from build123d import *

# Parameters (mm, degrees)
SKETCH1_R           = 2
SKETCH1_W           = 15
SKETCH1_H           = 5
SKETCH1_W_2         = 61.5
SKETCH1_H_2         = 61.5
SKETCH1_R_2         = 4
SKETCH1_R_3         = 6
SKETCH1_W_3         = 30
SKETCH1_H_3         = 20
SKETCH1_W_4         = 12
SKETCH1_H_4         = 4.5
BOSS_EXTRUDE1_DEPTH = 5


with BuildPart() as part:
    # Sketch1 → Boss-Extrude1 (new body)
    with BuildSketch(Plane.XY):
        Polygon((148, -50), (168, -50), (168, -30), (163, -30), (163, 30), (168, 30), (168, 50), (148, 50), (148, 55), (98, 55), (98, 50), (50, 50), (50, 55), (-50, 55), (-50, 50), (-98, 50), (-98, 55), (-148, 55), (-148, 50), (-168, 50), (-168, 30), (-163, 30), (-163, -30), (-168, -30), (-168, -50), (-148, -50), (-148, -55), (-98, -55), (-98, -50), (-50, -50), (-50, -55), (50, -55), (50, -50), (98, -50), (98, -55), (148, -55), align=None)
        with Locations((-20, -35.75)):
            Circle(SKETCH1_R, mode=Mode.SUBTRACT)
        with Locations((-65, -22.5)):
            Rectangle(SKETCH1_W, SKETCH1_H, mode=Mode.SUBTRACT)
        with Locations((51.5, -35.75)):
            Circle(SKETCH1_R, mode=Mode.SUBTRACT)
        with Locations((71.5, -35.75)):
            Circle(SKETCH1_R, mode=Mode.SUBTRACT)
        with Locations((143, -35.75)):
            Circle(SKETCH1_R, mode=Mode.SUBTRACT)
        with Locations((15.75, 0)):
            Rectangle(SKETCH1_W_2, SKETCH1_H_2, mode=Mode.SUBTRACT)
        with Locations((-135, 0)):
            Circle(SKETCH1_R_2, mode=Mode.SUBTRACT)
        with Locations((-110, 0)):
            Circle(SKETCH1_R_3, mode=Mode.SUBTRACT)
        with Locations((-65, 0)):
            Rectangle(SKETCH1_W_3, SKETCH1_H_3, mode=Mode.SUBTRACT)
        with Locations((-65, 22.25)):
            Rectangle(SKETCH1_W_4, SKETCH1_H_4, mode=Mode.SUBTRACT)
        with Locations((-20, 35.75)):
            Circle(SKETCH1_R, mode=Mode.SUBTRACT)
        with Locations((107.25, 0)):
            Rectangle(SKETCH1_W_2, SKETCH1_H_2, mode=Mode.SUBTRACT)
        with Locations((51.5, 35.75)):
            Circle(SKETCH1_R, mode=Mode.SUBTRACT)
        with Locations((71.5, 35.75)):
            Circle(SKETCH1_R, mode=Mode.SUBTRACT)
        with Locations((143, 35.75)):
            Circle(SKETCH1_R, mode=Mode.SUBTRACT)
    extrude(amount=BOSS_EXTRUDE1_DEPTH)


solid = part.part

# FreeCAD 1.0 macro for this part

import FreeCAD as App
import Part
import Sketcher

V = App.Vector
Q = App.Units.Quantity

doc = App.newDocument("Part")
body = doc.addObject("PartDesign::Body", "Body")

# Sketch on XY plane
sketch1 = body.newObject("Sketcher::SketchObject", "Sketch")
sketch1.AttachmentSupport = (doc.getObject("XY_Plane"), [""])
sketch1.MapMode = "FlatFace"
sketch1.addGeometry(Part.LineSegment(V(148, -50, 0), V(168, -50, 0)), False)
sketch1.addGeometry(Part.LineSegment(V(168, -50, 0), V(168, -30, 0)), False)
sketch1.addGeometry(Part.LineSegment(V(168, -30, 0), V(163, -30, 0)), False)
sketch1.addGeometry(Part.LineSegment(V(163, -30, 0), V(163, 30, 0)), False)
sketch1.addGeometry(Part.LineSegment(V(163, 30, 0), V(168, 30, 0)), False)
sketch1.addGeometry(Part.LineSegment(V(168, 30, 0), V(168, 50, 0)), False)
sketch1.addGeometry(Part.LineSegment(V(168, 50, 0), V(148, 50, 0)), False)
sketch1.addGeometry(Part.LineSegment(V(148, 50, 0), V(148, 55, 0)), False)
sketch1.addGeometry(Part.LineSegment(V(148, 55, 0), V(98, 55, 0)), False)
sketch1.addGeometry(Part.LineSegment(V(98, 55, 0), V(98, 50, 0)), False)
sketch1.addGeometry(Part.LineSegment(V(98, 50, 0), V(50, 50, 0)), False)
sketch1.addGeometry(Part.LineSegment(V(50, 50, 0), V(50, 55, 0)), False)
sketch1.addGeometry(Part.LineSegment(V(50, 55, 0), V(-50, 55, 0)), False)
sketch1.addGeometry(Part.LineSegment(V(-50, 55, 0), V(-50, 50, 0)), False)
sketch1.addGeometry(Part.LineSegment(V(-50, 50, 0), V(-98, 50, 0)), False)
sketch1.addGeometry(Part.LineSegment(V(-98, 50, 0), V(-98, 55, 0)), False)
sketch1.addGeometry(Part.LineSegment(V(-98, 55, 0), V(-148, 55, 0)), False)
sketch1.addGeometry(Part.LineSegment(V(-148, 55, 0), V(-148, 50, 0)), False)
sketch1.addGeometry(Part.LineSegment(V(-148, 50, 0), V(-168, 50, 0)), False)
sketch1.addGeometry(Part.LineSegment(V(-168, 50, 0), V(-168, 30, 0)), False)
sketch1.addGeometry(Part.LineSegment(V(-168, 30, 0), V(-163, 30, 0)), False)
sketch1.addGeometry(Part.LineSegment(V(-163, 30, 0), V(-163, -30, 0)), False)
sketch1.addGeometry(Part.LineSegment(V(-163, -30, 0), V(-168, -30, 0)), False)
sketch1.addGeometry(Part.LineSegment(V(-168, -30, 0), V(-168, -50, 0)), False)
sketch1.addGeometry(Part.LineSegment(V(-168, -50, 0), V(-148, -50, 0)), False)
sketch1.addGeometry(Part.LineSegment(V(-148, -50, 0), V(-148, -55, 0)), False)
sketch1.addGeometry(Part.LineSegment(V(-148, -55, 0), V(-98, -55, 0)), False)
sketch1.addGeometry(Part.LineSegment(V(-98, -55, 0), V(-98, -50, 0)), False)
sketch1.addGeometry(Part.LineSegment(V(-98, -50, 0), V(-50, -50, 0)), False)
sketch1.addGeometry(Part.LineSegment(V(-50, -50, 0), V(-50, -55, 0)), False)
sketch1.addGeometry(Part.LineSegment(V(-50, -55, 0), V(50, -55, 0)), False)
sketch1.addGeometry(Part.LineSegment(V(50, -55, 0), V(50, -50, 0)), False)
sketch1.addGeometry(Part.LineSegment(V(50, -50, 0), V(98, -50, 0)), False)
sketch1.addGeometry(Part.LineSegment(V(98, -50, 0), V(98, -55, 0)), False)
sketch1.addGeometry(Part.LineSegment(V(98, -55, 0), V(148, -55, 0)), False)
sketch1.addGeometry(Part.LineSegment(V(148, -55, 0), V(148, -50, 0)), False)
sketch1.addGeometry(Part.Circle(V(-20, -35.8, 0), V(0, 0, 1), 2), False)
sketch1.addGeometry(Part.LineSegment(V(-57.5, -25, 0), V(-72.5, -25, 0)), False)
sketch1.addGeometry(Part.LineSegment(V(-72.5, -25, 0), V(-72.5, -20, 0)), False)
sketch1.addGeometry(Part.LineSegment(V(-72.5, -20, 0), V(-57.5, -20, 0)), False)
sketch1.addGeometry(Part.LineSegment(V(-57.5, -20, 0), V(-57.5, -25, 0)), False)
sketch1.addGeometry(Part.Circle(V(51.5, -35.8, 0), V(0, 0, 1), 2), False)
sketch1.addGeometry(Part.Circle(V(71.5, -35.8, 0), V(0, 0, 1), 2), False)
sketch1.addGeometry(Part.Circle(V(143, -35.8, 0), V(0, 0, 1), 2), False)
sketch1.addGeometry(Part.Circle(V(-135, 0, 0), V(0, 0, 1), 4), False)
sketch1.addGeometry(Part.Circle(V(-110, 0, 0), V(0, 0, 1), 6), False)
sketch1.addGeometry(Part.LineSegment(V(-50, -10, 0), V(-80, -10, 0)), False)
sketch1.addGeometry(Part.LineSegment(V(-80, -10, 0), V(-80, 10, 0)), False)
sketch1.addGeometry(Part.LineSegment(V(-80, 10, 0), V(-50, 10, 0)), False)
sketch1.addGeometry(Part.LineSegment(V(-50, 10, 0), V(-50, -10, 0)), False)
sketch1.addGeometry(Part.LineSegment(V(-59, 20, 0), V(-71, 20, 0)), False)
sketch1.addGeometry(Part.LineSegment(V(-71, 20, 0), V(-71, 24.5, 0)), False)
sketch1.addGeometry(Part.LineSegment(V(-71, 24.5, 0), V(-59, 24.5, 0)), False)
sketch1.addGeometry(Part.LineSegment(V(-59, 24.5, 0), V(-59, 20, 0)), False)
sketch1.addGeometry(Part.Circle(V(-20, 35.8, 0), V(0, 0, 1), 2), False)
sketch1.addGeometry(Part.LineSegment(V(46.5, -30.8, 0), V(-15, -30.8, 0)), False)
sketch1.addGeometry(Part.LineSegment(V(-15, -30.8, 0), V(-15, 30.8, 0)), False)
sketch1.addGeometry(Part.LineSegment(V(-15, 30.8, 0), V(46.5, 30.8, 0)), False)
sketch1.addGeometry(Part.LineSegment(V(46.5, 30.8, 0), V(46.5, -30.8, 0)), False)
sketch1.addGeometry(Part.LineSegment(V(138, -30.8, 0), V(76.5, -30.8, 0)), False)
sketch1.addGeometry(Part.LineSegment(V(76.5, -30.8, 0), V(76.5, 30.8, 0)), False)
sketch1.addGeometry(Part.LineSegment(V(76.5, 30.8, 0), V(138, 30.8, 0)), False)
sketch1.addGeometry(Part.LineSegment(V(138, 30.8, 0), V(138, -30.8, 0)), False)
sketch1.addGeometry(Part.Circle(V(51.5, 35.8, 0), V(0, 0, 1), 2), False)
sketch1.addGeometry(Part.Circle(V(71.5, 35.8, 0), V(0, 0, 1), 2), False)
sketch1.addGeometry(Part.Circle(V(143, 35.8, 0), V(0, 0, 1), 2), False)
sketch1.addConstraint(Sketcher.Constraint("Coincident", 0, 2, 1, 1))
sketch1.addConstraint(Sketcher.Constraint("Coincident", 1, 2, 2, 1))
sketch1.addConstraint(Sketcher.Constraint("Coincident", 2, 2, 3, 1))
sketch1.addConstraint(Sketcher.Constraint("Coincident", 3, 2, 4, 1))
sketch1.addConstraint(Sketcher.Constraint("Coincident", 4, 2, 5, 1))
sketch1.addConstraint(Sketcher.Constraint("Coincident", 5, 2, 6, 1))
sketch1.addConstraint(Sketcher.Constraint("Coincident", 6, 2, 7, 1))
sketch1.addConstraint(Sketcher.Constraint("Coincident", 7, 2, 8, 1))
sketch1.addConstraint(Sketcher.Constraint("Coincident", 8, 2, 9, 1))
sketch1.addConstraint(Sketcher.Constraint("Coincident", 9, 2, 10, 1))
sketch1.addConstraint(Sketcher.Constraint("Coincident", 10, 2, 11, 1))
sketch1.addConstraint(Sketcher.Constraint("Coincident", 11, 2, 12, 1))
sketch1.addConstraint(Sketcher.Constraint("Coincident", 12, 2, 13, 1))
sketch1.addConstraint(Sketcher.Constraint("Coincident", 13, 2, 14, 1))
sketch1.addConstraint(Sketcher.Constraint("Coincident", 14, 2, 15, 1))
sketch1.addConstraint(Sketcher.Constraint("Coincident", 15, 2, 16, 1))
sketch1.addConstraint(Sketcher.Constraint("Coincident", 16, 2, 17, 1))
sketch1.addConstraint(Sketcher.Constraint("Coincident", 17, 2, 18, 1))
sketch1.addConstraint(Sketcher.Constraint("Coincident", 18, 2, 19, 1))
sketch1.addConstraint(Sketcher.Constraint("Coincident", 19, 2, 20, 1))
sketch1.addConstraint(Sketcher.Constraint("Coincident", 20, 2, 21, 1))
sketch1.addConstraint(Sketcher.Constraint("Coincident", 21, 2, 22, 1))
sketch1.addConstraint(Sketcher.Constraint("Coincident", 22, 2, 23, 1))
sketch1.addConstraint(Sketcher.Constraint("Coincident", 23, 2, 24, 1))
sketch1.addConstraint(Sketcher.Constraint("Coincident", 24, 2, 25, 1))
sketch1.addConstraint(Sketcher.Constraint("Coincident", 25, 2, 26, 1))
sketch1.addConstraint(Sketcher.Constraint("Coincident", 26, 2, 27, 1))
sketch1.addConstraint(Sketcher.Constraint("Coincident", 27, 2, 28, 1))
sketch1.addConstraint(Sketcher.Constraint("Coincident", 28, 2, 29, 1))
sketch1.addConstraint(Sketcher.Constraint("Coincident", 29, 2, 30, 1))
sketch1.addConstraint(Sketcher.Constraint("Coincident", 30, 2, 31, 1))
sketch1.addConstraint(Sketcher.Constraint("Coincident", 31, 2, 32, 1))
sketch1.addConstraint(Sketcher.Constraint("Coincident", 32, 2, 33, 1))
sketch1.addConstraint(Sketcher.Constraint("Coincident", 33, 2, 34, 1))
sketch1.addConstraint(Sketcher.Constraint("Coincident", 34, 2, 35, 1))
sketch1.addConstraint(Sketcher.Constraint("Coincident", 35, 2, 0, 1))
sketch1.addConstraint(Sketcher.Constraint("Coincident", 37, 2, 38, 1))
sketch1.addConstraint(Sketcher.Constraint("Coincident", 38, 2, 39, 1))
sketch1.addConstraint(Sketcher.Constraint("Coincident", 39, 2, 40, 1))
sketch1.addConstraint(Sketcher.Constraint("Coincident", 40, 2, 37, 1))
sketch1.addConstraint(Sketcher.Constraint("Coincident", 46, 2, 47, 1))
sketch1.addConstraint(Sketcher.Constraint("Coincident", 47, 2, 48, 1))
sketch1.addConstraint(Sketcher.Constraint("Coincident", 48, 2, 49, 1))
sketch1.addConstraint(Sketcher.Constraint("Coincident", 49, 2, 46, 1))
sketch1.addConstraint(Sketcher.Constraint("Coincident", 50, 2, 51, 1))
sketch1.addConstraint(Sketcher.Constraint("Coincident", 51, 2, 52, 1))
sketch1.addConstraint(Sketcher.Constraint("Coincident", 52, 2, 53, 1))
sketch1.addConstraint(Sketcher.Constraint("Coincident", 53, 2, 50, 1))
sketch1.addConstraint(Sketcher.Constraint("Coincident", 55, 2, 56, 1))
sketch1.addConstraint(Sketcher.Constraint("Coincident", 56, 2, 57, 1))
sketch1.addConstraint(Sketcher.Constraint("Coincident", 57, 2, 58, 1))
sketch1.addConstraint(Sketcher.Constraint("Coincident", 58, 2, 55, 1))
sketch1.addConstraint(Sketcher.Constraint("Coincident", 59, 2, 60, 1))
sketch1.addConstraint(Sketcher.Constraint("Coincident", 60, 2, 61, 1))
sketch1.addConstraint(Sketcher.Constraint("Coincident", 61, 2, 62, 1))
sketch1.addConstraint(Sketcher.Constraint("Coincident", 62, 2, 59, 1))
sketch1.addConstraint(Sketcher.Constraint("Horizontal", 0))
sketch1.addConstraint(Sketcher.Constraint("Vertical", 1))
sketch1.addConstraint(Sketcher.Constraint("Horizontal", 2))
sketch1.addConstraint(Sketcher.Constraint("Vertical", 3))
sketch1.addConstraint(Sketcher.Constraint("Horizontal", 4))
sketch1.addConstraint(Sketcher.Constraint("Vertical", 5))
sketch1.addConstraint(Sketcher.Constraint("Horizontal", 6))
sketch1.addConstraint(Sketcher.Constraint("Vertical", 7))
sketch1.addConstraint(Sketcher.Constraint("Horizontal", 8))
sketch1.addConstraint(Sketcher.Constraint("Vertical", 9))
sketch1.addConstraint(Sketcher.Constraint("Horizontal", 10))
sketch1.addConstraint(Sketcher.Constraint("Vertical", 11))
sketch1.addConstraint(Sketcher.Constraint("Horizontal", 12))
sketch1.addConstraint(Sketcher.Constraint("Vertical", 13))
sketch1.addConstraint(Sketcher.Constraint("Horizontal", 14))
sketch1.addConstraint(Sketcher.Constraint("Vertical", 15))
sketch1.addConstraint(Sketcher.Constraint("Horizontal", 16))
sketch1.addConstraint(Sketcher.Constraint("Vertical", 17))
sketch1.addConstraint(Sketcher.Constraint("Horizontal", 18))
sketch1.addConstraint(Sketcher.Constraint("Vertical", 19))
sketch1.addConstraint(Sketcher.Constraint("Horizontal", 20))
sketch1.addConstraint(Sketcher.Constraint("Vertical", 21))
sketch1.addConstraint(Sketcher.Constraint("Horizontal", 22))
sketch1.addConstraint(Sketcher.Constraint("Vertical", 23))
sketch1.addConstraint(Sketcher.Constraint("Horizontal", 24))
sketch1.addConstraint(Sketcher.Constraint("Vertical", 25))
sketch1.addConstraint(Sketcher.Constraint("Horizontal", 26))
sketch1.addConstraint(Sketcher.Constraint("Vertical", 27))
sketch1.addConstraint(Sketcher.Constraint("Horizontal", 28))
sketch1.addConstraint(Sketcher.Constraint("Vertical", 29))
sketch1.addConstraint(Sketcher.Constraint("Horizontal", 30))
sketch1.addConstraint(Sketcher.Constraint("Vertical", 31))
sketch1.addConstraint(Sketcher.Constraint("Horizontal", 32))
sketch1.addConstraint(Sketcher.Constraint("Vertical", 33))
sketch1.addConstraint(Sketcher.Constraint("Horizontal", 34))
sketch1.addConstraint(Sketcher.Constraint("Vertical", 35))
sketch1.addConstraint(Sketcher.Constraint("Horizontal", 37))
sketch1.addConstraint(Sketcher.Constraint("Vertical", 38))
sketch1.addConstraint(Sketcher.Constraint("Horizontal", 39))
sketch1.addConstraint(Sketcher.Constraint("Vertical", 40))
sketch1.addConstraint(Sketcher.Constraint("Horizontal", 46))
sketch1.addConstraint(Sketcher.Constraint("Vertical", 47))
sketch1.addConstraint(Sketcher.Constraint("Horizontal", 48))
sketch1.addConstraint(Sketcher.Constraint("Vertical", 49))
sketch1.addConstraint(Sketcher.Constraint("Horizontal", 50))
sketch1.addConstraint(Sketcher.Constraint("Vertical", 51))
sketch1.addConstraint(Sketcher.Constraint("Horizontal", 52))
sketch1.addConstraint(Sketcher.Constraint("Vertical", 53))
sketch1.addConstraint(Sketcher.Constraint("Horizontal", 55))
sketch1.addConstraint(Sketcher.Constraint("Vertical", 56))
sketch1.addConstraint(Sketcher.Constraint("Horizontal", 57))
sketch1.addConstraint(Sketcher.Constraint("Vertical", 58))
sketch1.addConstraint(Sketcher.Constraint("Horizontal", 59))
sketch1.addConstraint(Sketcher.Constraint("Vertical", 60))
sketch1.addConstraint(Sketcher.Constraint("Horizontal", 61))
sketch1.addConstraint(Sketcher.Constraint("Vertical", 62))
sketch1.addConstraint(Sketcher.Constraint("Equal", 36, 41))
sketch1.addConstraint(Sketcher.Constraint("Equal", 41, 42))
sketch1.addConstraint(Sketcher.Constraint("Equal", 42, 43))
sketch1.addConstraint(Sketcher.Constraint("Equal", 43, 54))
sketch1.addConstraint(Sketcher.Constraint("Equal", 54, 63))
sketch1.addConstraint(Sketcher.Constraint("Equal", 63, 64))
sketch1.addConstraint(Sketcher.Constraint("Equal", 64, 65))
sketch1.addConstraint(Sketcher.Constraint("Symmetric", 0, 2, 18, 2, -1, 1))
sketch1.addConstraint(Sketcher.Constraint("Symmetric", 2, 2, 20, 2, -1, 1))
sketch1.addConstraint(Sketcher.Constraint("Symmetric", 4, 2, 22, 2, -1, 1))
sketch1.addConstraint(Sketcher.Constraint("Symmetric", 6, 2, 24, 2, -1, 1))
sketch1.addConstraint(Sketcher.Constraint("Symmetric", 8, 2, 26, 2, -1, 1))
sketch1.addConstraint(Sketcher.Constraint("Symmetric", 10, 2, 28, 2, -1, 1))
sketch1.addConstraint(Sketcher.Constraint("Symmetric", 12, 2, 30, 2, -1, 1))
sketch1.addConstraint(Sketcher.Constraint("Symmetric", 14, 2, 32, 2, -1, 1))
sketch1.addConstraint(Sketcher.Constraint("Symmetric", 16, 2, 34, 2, -1, 1))
sketch1.addConstraint(Sketcher.Constraint("Symmetric", 10, 2, 13, 2, -2))
sketch1.addConstraint(Sketcher.Constraint("Symmetric", 8, 2, 15, 2, -2))
sketch1.addConstraint(Sketcher.Constraint("Symmetric", 6, 2, 17, 2, -2))
sketch1.addConstraint(Sketcher.Constraint("Symmetric", 4, 2, 19, 2, -2))
sketch1.addConstraint(Sketcher.Constraint("Symmetric", 36, 3, 54, 3, -1))
sketch1.addConstraint(Sketcher.Constraint("Symmetric", 41, 3, 63, 3, -1))
sketch1.addConstraint(Sketcher.Constraint("Symmetric", 42, 3, 64, 3, -1))
sketch1.addConstraint(Sketcher.Constraint("Symmetric", 43, 3, 65, 3, -1))
sketch1.addConstraint(Sketcher.Constraint("PointOnObject", 44, 3, -1))
sketch1.addConstraint(Sketcher.Constraint("PointOnObject", 45, 3, -1))
sketch1.addConstraint(Sketcher.Constraint("Horizontal", 36, 3, 41, 3))
sketch1.addConstraint(Sketcher.Constraint("Horizontal", 41, 3, 42, 3))
sketch1.addConstraint(Sketcher.Constraint("Horizontal", 42, 3, 43, 3))
sketch1.addConstraint(Sketcher.Constraint("Horizontal", 6, 2, 9, 2))
sketch1.addConstraint(Sketcher.Constraint("Horizontal", 8, 2, 11, 2))
sketch1.addConstraint(Sketcher.Constraint("Horizontal", 58, 2, 59, 2))
sketch1.addConstraint(Sketcher.Constraint("Horizontal", 57, 2, 60, 2))
sketch1.addConstraint(Sketcher.Constraint("Vertical", 29, 2, 48, 2))
sketch1.addConstraint(Sketcher.Constraint("Equal", 57, 59))
sketch1.addConstraint(Sketcher.Constraint("Equal", 24, 1))
sketch1.addConstraint(Sketcher.Constraint("Equal", 22, 7))
sketch1.addConstraint(Sketcher.Constraint("Equal", 35, 38))
sketch1.addConstraint(Sketcher.Constraint("Equal", 23, 47))
sketch1.addConstraint(Sketcher.Constraint("Equal", 61, 56))
sketch1.addConstraint(Sketcher.Constraint("Diameter", 36, Q("4 mm")))
sketch1.addConstraint(Sketcher.Constraint("Diameter", 44, Q("8 mm")))
sketch1.addConstraint(Sketcher.Constraint("Diameter", 45, Q("12 mm")))
sketch1.addConstraint(Sketcher.Constraint("DistanceX", 0, 1, 0, 2, Q("20 mm")))
sketch1.addConstraint(Sketcher.Constraint("DistanceX", 2, 2, 2, 1, Q("5 mm")))
sketch1.addConstraint(Sketcher.Constraint("DistanceX", 8, 2, 8, 1, Q("50 mm")))
sketch1.addConstraint(Sketcher.Constraint("DistanceX", 10, 2, 10, 1, Q("48 mm")))
sketch1.addConstraint(Sketcher.Constraint("DistanceX", 12, 2, 12, 1, Q("100 mm")))
sketch1.addConstraint(Sketcher.Constraint("DistanceX", 37, 2, 37, 1, Q("15 mm")))
sketch1.addConstraint(Sketcher.Constraint("DistanceX", 46, 2, 46, 1, Q("30 mm")))
sketch1.addConstraint(Sketcher.Constraint("DistanceX", 50, 2, 50, 1, Q("12 mm")))
sketch1.addConstraint(Sketcher.Constraint("DistanceY", 3, 1, 3, 2, Q("60 mm")))
sketch1.addConstraint(Sketcher.Constraint("DistanceX", 55, 2, 55, 1, Q("61.5 mm")))
sketch1.addConstraint(Sketcher.Constraint("DistanceY", 51, 1, 51, 2, Q("4.5 mm")))
sketch1.addConstraint(Sketcher.Constraint("DistanceX", 36, 3, -1, 1, Q("20 mm")))
sketch1.addConstraint(Sketcher.Constraint("DistanceX", -1, 1, 43, 3, Q("143 mm")))
sketch1.addConstraint(Sketcher.Constraint("DistanceX", 44, 3, -1, 1, Q("135 mm")))
sketch1.addConstraint(Sketcher.Constraint("DistanceX", 45, 3, -1, 1, Q("110 mm")))
sketch1.addConstraint(Sketcher.Constraint("DistanceY", 37, 2, -1, 1, Q("25 mm")))
sketch1.addConstraint(Sketcher.Constraint("DistanceY", 46, 2, -1, 1, Q("10 mm")))
sketch1.addConstraint(Sketcher.Constraint("DistanceX", 50, 2, -1, 1, Q("71 mm")))
sketch1.addConstraint(Sketcher.Constraint("DistanceY", -1, 1, 50, 2, Q("20 mm")))
sketch1.addConstraint(Sketcher.Constraint("DistanceX", 55, 2, -1, 1, Q("15 mm")))
sketch1.addConstraint(Sketcher.Constraint("DistanceX", -1, 1, 61, 2, Q("138 mm")))
sketch1.addConstraint(Sketcher.Constraint("DistanceX", -1, 1, 41, 3, Q("51.5 mm")))
sketch1.addConstraint(Sketcher.Constraint("DistanceX", -1, 1, 42, 3, Q("71.5 mm")))
sketch1.addConstraint(Sketcher.Constraint("DistanceX", 37, 2, -1, 1, Q("72.5 mm")))
sketch1.addConstraint(Sketcher.Constraint("DistanceY", 36, 3, -1, 1, Q("35.75 mm")))
sketch1.addConstraint(Sketcher.Constraint("DistanceY", 55, 2, -1, 1, Q("30.75 mm")))
pad1 = body.newObject("PartDesign::Pad", "Pad")
pad1.Profile = sketch1
pad1.Length = 5

doc.recompute()
